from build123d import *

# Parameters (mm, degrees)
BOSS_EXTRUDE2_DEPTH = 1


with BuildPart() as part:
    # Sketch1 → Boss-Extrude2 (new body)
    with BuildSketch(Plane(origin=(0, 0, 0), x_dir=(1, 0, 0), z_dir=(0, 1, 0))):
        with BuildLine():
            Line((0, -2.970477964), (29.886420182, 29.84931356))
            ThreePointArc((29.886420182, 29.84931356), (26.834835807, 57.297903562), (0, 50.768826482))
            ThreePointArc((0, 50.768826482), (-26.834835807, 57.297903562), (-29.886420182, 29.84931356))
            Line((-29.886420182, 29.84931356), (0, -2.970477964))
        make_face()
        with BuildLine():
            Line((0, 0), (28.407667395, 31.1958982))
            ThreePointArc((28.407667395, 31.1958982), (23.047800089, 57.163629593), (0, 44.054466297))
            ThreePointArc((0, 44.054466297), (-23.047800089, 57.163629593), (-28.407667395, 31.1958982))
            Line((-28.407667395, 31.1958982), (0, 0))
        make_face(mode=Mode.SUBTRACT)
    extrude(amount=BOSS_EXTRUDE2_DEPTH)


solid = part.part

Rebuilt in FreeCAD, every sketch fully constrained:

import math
import FreeCAD as App
import Part
import Sketcher

V = App.Vector

doc = App.newDocument("Part")
params = doc.addObject("Spreadsheet::Sheet", "Params")
for row, (alias, value) in enumerate([
    ("pad1_length", "1 mm"),
], start=1):
    params.set(f"A{row}", alias)
    params.set(f"B{row}", "=" + value)
    params.setAlias(f"B{row}", alias)

body = doc.addObject("PartDesign::Body", "Body")

sketch1 = body.newObject("Sketcher::SketchObject", "Sketch")
sketch1.AttachmentSupport = (doc.getObject("XZ_Plane"), [""])
sketch1.MapMode = "FlatFace"
sketch1.addGeometry([
    Part.LineSegment(V(0, 3, 0), V(30, -30, 0)),
    Part.ArcOfCircle(Part.Circle(V(16, -42, 0), V(0, 0, 1), 18), math.radians(-152), math.radians(42)),
    Part.ArcOfCircle(Part.Circle(V(-16, -42, 0), V(0, 0, 1), 18), math.radians(138), math.radians(332)),
    Part.LineSegment(V(-30, -30, 0), V(0, 3, 0)),
    Part.LineSegment(V(28, -31, 0), V(0, 0, 0)),
    Part.LineSegment(V(0, 0, 0), V(-28, -31, 0)),
    Part.ArcOfCircle(Part.Circle(V(-16, -42, 0), V(0, 0, 1), 16), math.radians(138), math.radians(354)),
    Part.ArcOfCircle(Part.Circle(V(16, -42, 0), V(0, 0, 1), 16), math.radians(-174), math.radians(42)),
], False)
sketch1.addConstraint([
    Sketcher.Constraint("Tangent", 0, 2, 1, 2),
    Sketcher.Constraint("Coincident", 1, 1, 2, 2),
    Sketcher.Constraint("Tangent", 2, 1, 3, 1),
    Sketcher.Constraint("Coincident", 3, 2, 0, 1),
    Sketcher.Constraint("Coincident", 4, 2, 5, 1),
    Sketcher.Constraint("Tangent", 5, 2, 6, 1),
    Sketcher.Constraint("Coincident", 6, 2, 7, 1),
    Sketcher.Constraint("Tangent", 7, 2, 4, 1),
    Sketcher.Constraint("Coincident", 4, 2, -1, 1),
    Sketcher.Constraint("Coincident", 6, 3, 2, 3),
    Sketcher.Constraint("Coincident", 7, 3, 1, 3),
    Sketcher.Constraint("Equal", 1, 2),
    Sketcher.Constraint("Equal", 6, 7),
    Sketcher.Constraint("Symmetric", 1, 3, 2, 3, -2),
    Sketcher.Constraint("PointOnObject", 3, 2, -2),
    Sketcher.Constraint("Parallel", 0, 4),
    Sketcher.Constraint("Radius", 1, 18.390561),
    Sketcher.Constraint("Radius", 6, 16.390561),
    Sketcher.Constraint("DistanceY", 5, 2, -1, 1, 31.195898),
    Sketcher.Constraint("DistanceX", -1, 1, 0, 2, 29.88642),
])
pad1 = body.newObject("PartDesign::Pad", "Pad")
pad1.Profile = sketch1
pad1.setExpression("Length", "Params.pad1_length")
pad1.Reversed = True

doc.recompute()
